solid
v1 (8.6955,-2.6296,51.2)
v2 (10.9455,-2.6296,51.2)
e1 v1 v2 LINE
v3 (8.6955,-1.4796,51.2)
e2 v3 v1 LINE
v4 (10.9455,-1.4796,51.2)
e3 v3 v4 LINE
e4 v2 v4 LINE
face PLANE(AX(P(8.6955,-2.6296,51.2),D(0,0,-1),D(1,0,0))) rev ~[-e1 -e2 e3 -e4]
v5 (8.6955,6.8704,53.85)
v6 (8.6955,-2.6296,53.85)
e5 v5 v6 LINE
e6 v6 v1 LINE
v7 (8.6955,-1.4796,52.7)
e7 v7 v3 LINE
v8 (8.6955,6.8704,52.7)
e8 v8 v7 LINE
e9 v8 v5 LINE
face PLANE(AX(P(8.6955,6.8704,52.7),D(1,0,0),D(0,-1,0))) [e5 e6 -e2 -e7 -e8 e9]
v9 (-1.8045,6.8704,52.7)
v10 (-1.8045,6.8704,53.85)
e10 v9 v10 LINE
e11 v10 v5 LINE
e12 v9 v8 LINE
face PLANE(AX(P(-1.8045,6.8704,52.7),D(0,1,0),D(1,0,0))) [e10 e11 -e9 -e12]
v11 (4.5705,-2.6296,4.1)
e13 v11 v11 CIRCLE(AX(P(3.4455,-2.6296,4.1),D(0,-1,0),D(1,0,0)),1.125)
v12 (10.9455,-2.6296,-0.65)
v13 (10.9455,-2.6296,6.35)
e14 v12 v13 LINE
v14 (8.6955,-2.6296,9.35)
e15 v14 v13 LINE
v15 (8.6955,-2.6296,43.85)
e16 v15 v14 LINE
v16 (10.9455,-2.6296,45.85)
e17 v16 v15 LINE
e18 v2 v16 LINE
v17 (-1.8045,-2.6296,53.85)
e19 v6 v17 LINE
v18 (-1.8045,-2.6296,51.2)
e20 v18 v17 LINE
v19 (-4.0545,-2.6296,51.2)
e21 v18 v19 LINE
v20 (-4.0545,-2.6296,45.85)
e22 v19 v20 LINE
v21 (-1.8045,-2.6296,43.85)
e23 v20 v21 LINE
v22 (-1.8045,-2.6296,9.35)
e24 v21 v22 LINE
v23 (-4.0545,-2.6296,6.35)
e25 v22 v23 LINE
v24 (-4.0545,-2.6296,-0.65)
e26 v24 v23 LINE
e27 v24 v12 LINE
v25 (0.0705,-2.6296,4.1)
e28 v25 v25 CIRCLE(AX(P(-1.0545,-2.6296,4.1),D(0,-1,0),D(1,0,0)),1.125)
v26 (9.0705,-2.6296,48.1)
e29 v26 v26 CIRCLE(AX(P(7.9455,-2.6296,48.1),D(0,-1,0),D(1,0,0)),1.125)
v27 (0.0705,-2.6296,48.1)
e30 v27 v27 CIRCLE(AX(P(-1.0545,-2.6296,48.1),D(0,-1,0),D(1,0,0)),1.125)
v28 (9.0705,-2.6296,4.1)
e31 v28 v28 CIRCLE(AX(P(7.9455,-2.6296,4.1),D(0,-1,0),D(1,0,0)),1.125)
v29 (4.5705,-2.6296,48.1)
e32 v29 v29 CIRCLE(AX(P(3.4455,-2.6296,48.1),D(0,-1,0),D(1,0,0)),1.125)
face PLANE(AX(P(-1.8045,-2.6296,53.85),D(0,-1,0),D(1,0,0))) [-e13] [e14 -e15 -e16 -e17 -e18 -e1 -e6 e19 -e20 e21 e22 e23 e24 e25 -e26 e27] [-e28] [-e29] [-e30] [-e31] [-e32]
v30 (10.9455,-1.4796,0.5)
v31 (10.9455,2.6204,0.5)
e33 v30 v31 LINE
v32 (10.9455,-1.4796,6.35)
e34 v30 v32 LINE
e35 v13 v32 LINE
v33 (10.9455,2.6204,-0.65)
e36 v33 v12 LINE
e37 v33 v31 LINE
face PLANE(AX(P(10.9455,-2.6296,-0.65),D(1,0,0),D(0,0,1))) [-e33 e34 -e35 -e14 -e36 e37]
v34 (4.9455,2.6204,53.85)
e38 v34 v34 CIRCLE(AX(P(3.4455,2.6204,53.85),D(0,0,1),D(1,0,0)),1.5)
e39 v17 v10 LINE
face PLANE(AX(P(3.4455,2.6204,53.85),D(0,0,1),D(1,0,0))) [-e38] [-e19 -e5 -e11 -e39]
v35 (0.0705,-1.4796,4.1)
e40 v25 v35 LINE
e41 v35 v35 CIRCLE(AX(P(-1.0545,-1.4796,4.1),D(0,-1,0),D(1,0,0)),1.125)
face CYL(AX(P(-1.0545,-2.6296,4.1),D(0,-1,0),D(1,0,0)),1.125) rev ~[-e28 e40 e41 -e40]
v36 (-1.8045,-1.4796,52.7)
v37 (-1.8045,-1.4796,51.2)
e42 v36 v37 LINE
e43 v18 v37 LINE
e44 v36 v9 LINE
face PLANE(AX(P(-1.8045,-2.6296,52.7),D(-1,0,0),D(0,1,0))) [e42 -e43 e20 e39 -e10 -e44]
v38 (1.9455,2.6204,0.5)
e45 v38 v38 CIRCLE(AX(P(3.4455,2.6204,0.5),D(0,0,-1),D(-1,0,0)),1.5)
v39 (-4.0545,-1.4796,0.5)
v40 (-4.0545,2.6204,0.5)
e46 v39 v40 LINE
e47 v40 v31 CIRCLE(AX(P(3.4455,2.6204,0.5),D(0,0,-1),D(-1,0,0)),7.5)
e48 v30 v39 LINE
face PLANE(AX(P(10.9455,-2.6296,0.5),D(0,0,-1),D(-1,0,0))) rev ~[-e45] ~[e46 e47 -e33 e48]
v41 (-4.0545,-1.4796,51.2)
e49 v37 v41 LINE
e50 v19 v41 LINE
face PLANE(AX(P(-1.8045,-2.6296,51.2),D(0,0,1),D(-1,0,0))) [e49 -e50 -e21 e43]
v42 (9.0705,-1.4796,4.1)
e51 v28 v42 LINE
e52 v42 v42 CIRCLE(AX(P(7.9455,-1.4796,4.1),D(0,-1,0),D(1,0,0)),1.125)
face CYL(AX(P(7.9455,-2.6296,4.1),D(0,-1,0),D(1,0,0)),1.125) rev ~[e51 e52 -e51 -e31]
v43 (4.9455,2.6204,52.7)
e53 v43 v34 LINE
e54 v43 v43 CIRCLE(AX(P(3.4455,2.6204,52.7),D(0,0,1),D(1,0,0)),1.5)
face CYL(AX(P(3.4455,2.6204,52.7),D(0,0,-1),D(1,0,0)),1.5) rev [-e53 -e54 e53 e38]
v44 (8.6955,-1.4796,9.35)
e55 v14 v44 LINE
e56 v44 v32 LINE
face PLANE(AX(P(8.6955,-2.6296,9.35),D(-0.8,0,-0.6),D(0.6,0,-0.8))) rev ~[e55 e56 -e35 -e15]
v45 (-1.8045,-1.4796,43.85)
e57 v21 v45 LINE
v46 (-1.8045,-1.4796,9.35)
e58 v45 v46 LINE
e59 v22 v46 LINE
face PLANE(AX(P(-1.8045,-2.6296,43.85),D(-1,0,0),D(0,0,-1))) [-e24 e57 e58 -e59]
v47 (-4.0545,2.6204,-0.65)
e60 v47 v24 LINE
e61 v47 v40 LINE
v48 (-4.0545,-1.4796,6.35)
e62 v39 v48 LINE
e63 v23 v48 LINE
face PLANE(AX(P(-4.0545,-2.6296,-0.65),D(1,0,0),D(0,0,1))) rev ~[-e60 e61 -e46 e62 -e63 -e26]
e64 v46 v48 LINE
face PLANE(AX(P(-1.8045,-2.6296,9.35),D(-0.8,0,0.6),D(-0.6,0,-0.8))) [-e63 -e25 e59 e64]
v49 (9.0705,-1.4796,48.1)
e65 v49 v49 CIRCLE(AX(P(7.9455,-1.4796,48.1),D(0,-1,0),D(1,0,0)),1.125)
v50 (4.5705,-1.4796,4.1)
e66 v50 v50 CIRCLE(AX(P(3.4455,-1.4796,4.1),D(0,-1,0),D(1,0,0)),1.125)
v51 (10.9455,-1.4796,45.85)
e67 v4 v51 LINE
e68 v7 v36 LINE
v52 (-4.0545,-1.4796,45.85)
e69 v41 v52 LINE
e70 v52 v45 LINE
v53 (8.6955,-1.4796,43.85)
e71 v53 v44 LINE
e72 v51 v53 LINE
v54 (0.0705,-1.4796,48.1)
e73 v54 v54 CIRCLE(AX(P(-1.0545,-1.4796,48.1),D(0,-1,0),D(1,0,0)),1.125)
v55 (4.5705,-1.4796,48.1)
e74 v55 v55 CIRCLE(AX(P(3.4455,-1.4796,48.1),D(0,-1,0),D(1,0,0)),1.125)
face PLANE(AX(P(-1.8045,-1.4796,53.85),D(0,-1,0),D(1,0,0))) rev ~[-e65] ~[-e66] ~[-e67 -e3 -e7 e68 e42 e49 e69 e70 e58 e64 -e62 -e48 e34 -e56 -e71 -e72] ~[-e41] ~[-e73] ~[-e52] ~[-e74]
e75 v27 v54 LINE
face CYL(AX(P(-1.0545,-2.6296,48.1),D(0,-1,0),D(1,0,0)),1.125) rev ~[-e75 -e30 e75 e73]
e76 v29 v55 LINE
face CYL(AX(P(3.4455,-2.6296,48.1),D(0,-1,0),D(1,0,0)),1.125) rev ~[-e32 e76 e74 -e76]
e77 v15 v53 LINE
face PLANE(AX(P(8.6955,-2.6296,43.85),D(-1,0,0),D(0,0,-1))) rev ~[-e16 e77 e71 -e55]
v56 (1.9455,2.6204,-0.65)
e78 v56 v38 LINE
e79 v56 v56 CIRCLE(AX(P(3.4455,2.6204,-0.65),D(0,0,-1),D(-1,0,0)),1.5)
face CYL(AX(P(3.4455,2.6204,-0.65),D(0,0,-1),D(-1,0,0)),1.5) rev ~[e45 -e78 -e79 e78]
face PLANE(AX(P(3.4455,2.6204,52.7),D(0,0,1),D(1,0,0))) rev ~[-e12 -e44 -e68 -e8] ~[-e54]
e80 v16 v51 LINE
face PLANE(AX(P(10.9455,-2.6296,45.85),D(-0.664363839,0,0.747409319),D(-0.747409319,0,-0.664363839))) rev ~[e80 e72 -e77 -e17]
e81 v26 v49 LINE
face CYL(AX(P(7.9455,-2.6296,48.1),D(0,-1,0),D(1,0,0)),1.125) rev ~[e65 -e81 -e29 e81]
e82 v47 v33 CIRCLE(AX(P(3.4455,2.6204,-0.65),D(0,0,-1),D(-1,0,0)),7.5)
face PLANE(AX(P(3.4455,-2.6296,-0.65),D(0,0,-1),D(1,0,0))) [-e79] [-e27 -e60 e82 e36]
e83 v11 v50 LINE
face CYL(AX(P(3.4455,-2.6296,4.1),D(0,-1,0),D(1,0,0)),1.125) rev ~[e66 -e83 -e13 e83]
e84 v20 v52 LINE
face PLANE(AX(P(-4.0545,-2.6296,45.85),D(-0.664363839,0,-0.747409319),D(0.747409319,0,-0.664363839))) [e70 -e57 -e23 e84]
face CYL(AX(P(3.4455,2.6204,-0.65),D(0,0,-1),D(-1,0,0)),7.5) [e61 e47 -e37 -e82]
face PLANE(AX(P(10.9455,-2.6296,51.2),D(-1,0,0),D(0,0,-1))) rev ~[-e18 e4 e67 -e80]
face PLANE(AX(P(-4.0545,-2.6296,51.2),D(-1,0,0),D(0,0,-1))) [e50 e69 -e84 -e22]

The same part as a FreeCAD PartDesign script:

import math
import FreeCAD as App
import Part
import Sketcher

V = App.Vector
Q = App.Units.Quantity

doc = App.newDocument("Part")
params = doc.addObject("Spreadsheet::Sheet", "Params")
for row, (alias, value) in enumerate([
    ("sketch1_diameter", "3 mm"),
    ("sketch1_width", "10.5 mm"),
    ("sketch1_height", "9.5 mm"),
    ("pad1_length", "1.15 mm"),
    ("sketch2_height", "1.15 mm"),
    ("sketch2_width", "10.5 mm"),
    ("pad2_length", "1.5 mm"),
    ("sketch3_diameter", "2.25 mm"),
    ("sketch3_height", "7 mm"),
    ("sketch3_height2", "34.5 mm"),
    ("sketch3_height3", "5.35 mm"),
    ("pad3_length", "1.15 mm"),
    ("sketch4_diameter", "3 mm"),
    ("sketch4_radius", "7.5 mm"),
    ("sketch4_height", "4.1 mm"),
    ("pad4_length", "1.15 mm"),
], start=1):
    params.set(f"A{row}", alias)
    params.set(f"B{row}", "=" + value)
    params.setAlias(f"B{row}", alias)

body = doc.addObject("PartDesign::Body", "Body")

# Sketch on XY plane
sketch1 = body.newObject("Sketcher::SketchObject", "Sketch")
sketch1.AttachmentSupport = (doc.getObject("XY_Plane"), [""])
sketch1.MapMode = "FlatFace"
sketch1.AttachmentOffset = App.Placement(V(0, 0, 52.7), App.Rotation())
sketch1.addGeometry([
    Part.LineSegment(V(8.6955, 6.8704, 0), V(-1.8045, 6.8704, 0)),  # 0
    Part.LineSegment(V(-1.8045, 6.8704, 0), V(-1.8045, -2.6296, 0)),  # 1
    Part.LineSegment(V(-1.8045, -2.6296, 0), V(8.6955, -2.6296, 0)),  # 2
    Part.LineSegment(V(8.6955, -2.6296, 0), V(8.6955, 6.8704, 0)),  # 3
    Part.Circle(V(3.4455, 2.6204, 0), V(0, 0, 1), 1.5),  # 4
], False)
sketch1.addConstraint([
    Sketcher.Constraint("Coincident", 0, 2, 1, 1),
    Sketcher.Constraint("Coincident", 1, 2, 2, 1),
    Sketcher.Constraint("Coincident", 2, 2, 3, 1),
    Sketcher.Constraint("Coincident", 3, 2, 0, 1),
    Sketcher.Constraint("Horizontal", 0),
    Sketcher.Constraint("Vertical", 1),
    Sketcher.Constraint("Horizontal", 2),
    Sketcher.Constraint("Vertical", 3),
    Sketcher.Constraint("Diameter", 4, Q("3 mm")),
    Sketcher.Constraint("DistanceX", 0, 2, 0, 1, Q("10.5 mm")),
    Sketcher.Constraint("DistanceY", 1, 2, 1, 1, Q("9.5 mm")),
    Sketcher.Constraint("DistanceX", 0, 2, 4, 3, Q("5.25 mm")),
    Sketcher.Constraint("DistanceY", 4, 3, 0, 2, Q("4.25 mm")),
    Sketcher.Constraint("DistanceX", -1, 1, 4, 3, Q("3.4455 mm")),
    Sketcher.Constraint("DistanceY", -1, 1, 4, 3, Q("2.6204 mm")),
])
sketch1.setExpression("Constraints[8]", "Params.sketch1_diameter")
sketch1.setExpression("Constraints[9]", "Params.sketch1_width")
sketch1.setExpression("Constraints[10]", "Params.sketch1_height")
pad1 = body.newObject("PartDesign::Pad", "Pad")
pad1.Profile = sketch1
pad1.setExpression("Length", "Params.pad1_length")

# Sketch on XY plane
sketch2 = body.newObject("Sketcher::SketchObject", "Sketch001")
sketch2.AttachmentSupport = (doc.getObject("XY_Plane"), [""])
sketch2.MapMode = "FlatFace"
sketch2.AttachmentOffset = App.Placement(V(0, 0, 52.7), App.Rotation())
sketch2.addGeometry([
    Part.LineSegment(V(-1.8045, -1.4796, 0), V(8.6955, -1.4796, 0)),
    Part.LineSegment(V(8.6955, -1.4796, 0), V(8.6955, -2.6296, 0)),
    Part.LineSegment(V(8.6955, -2.6296, 0), V(-1.8045, -2.6296, 0)),
    Part.LineSegment(V(-1.8045, -2.6296, 0), V(-1.8045, -1.4796, 0)),
], False)
sketch2.addConstraint([
    Sketcher.Constraint("Coincident", 0, 2, 1, 1),
    Sketcher.Constraint("Coincident", 1, 2, 2, 1),
    Sketcher.Constraint("Coincident", 2, 2, 3, 1),
    Sketcher.Constraint("Coincident", 3, 2, 0, 1),
    Sketcher.Constraint("Horizontal", 0),
    Sketcher.Constraint("Vertical", 1),
    Sketcher.Constraint("Horizontal", 2),
    Sketcher.Constraint("Vertical", 3),
    Sketcher.Constraint("DistanceY", 1, 2, 1, 1, Q("1.15 mm")),
    Sketcher.Constraint("DistanceX", 0, 1, 0, 2, Q("10.5 mm")),
    Sketcher.Constraint("DistanceX", -1, 1, 0, 2, Q("8.6955 mm")),
    Sketcher.Constraint("DistanceY", 0, 2, -1, 1, Q("1.4796 mm")),
])
sketch2.setExpression("Constraints[8]", "Params.sketch2_height")
sketch2.setExpression("Constraints[9]", "Params.sketch2_width")
pad2 = body.newObject("PartDesign::Pad", "Pad001")
pad2.Profile = sketch2
pad2.setExpression("Length", "Params.pad2_length")
pad2.Reversed = True

# Sketch on XZ plane
sketch3 = body.newObject("Sketcher::SketchObject", "Sketch002")
sketch3.AttachmentSupport = (doc.getObject("XZ_Plane"), [""])
sketch3.MapMode = "FlatFace"
sketch3.AttachmentOffset = App.Placement(V(0, 0, 2.6296), App.Rotation())
sketch3.addGeometry([
    Part.LineSegment(V(10.9455, 51.2, 0), V(-4.0545, 51.2, 0)),  # 0
    Part.LineSegment(V(-4.0545, 51.2, 0), V(-4.0545, 45.85, 0)),  # 1
    Part.LineSegment(V(-4.0545, 45.85, 0), V(-1.8045, 43.85, 0)),  # 2
    Part.LineSegment(V(-1.8045, 43.85, 0), V(-1.8045, 9.35, 0)),  # 3
    Part.LineSegment(V(-1.8045, 9.35, 0), V(-4.0545, 6.35, 0)),  # 4
    Part.LineSegment(V(-4.0545, 6.35, 0), V(-4.0545, -0.65, 0)),  # 5
    Part.LineSegment(V(-4.0545, -0.65, 0), V(10.9455, -0.65, 0)),  # 6
    Part.LineSegment(V(10.9455, -0.65, 0), V(10.9455, 6.35, 0)),  # 7
    Part.LineSegment(V(10.9455, 6.35, 0), V(8.6955, 9.35, 0)),  # 8
    Part.LineSegment(V(8.6955, 9.35, 0), V(8.6955, 43.85, 0)),  # 9
    Part.LineSegment(V(8.6955, 43.85, 0), V(10.9455, 45.85, 0)),  # 10
    Part.LineSegment(V(10.9455, 45.85, 0), V(10.9455, 51.2, 0)),  # 11
    Part.Circle(V(-1.0545, 4.1, 0), V(0, 0, 1), 1.125),  # 12
    Part.Circle(V(3.4455, 4.1, 0), V(0, 0, 1), 1.125),  # 13
    Part.Circle(V(7.9455, 4.1, 0), V(0, 0, 1), 1.125),  # 14
    Part.Circle(V(-1.0545, 48.1, 0), V(0, 0, 1), 1.125),  # 15
    Part.Circle(V(3.4455, 48.1, 0), V(0, 0, 1), 1.125),  # 16
    Part.Circle(V(7.9455, 48.1, 0), V(0, 0, 1), 1.125),  # 17
], False)
sketch3.addConstraint([
    Sketcher.Constraint("Coincident", 0, 2, 1, 1),
    Sketcher.Constraint("Coincident", 1, 2, 2, 1),
    Sketcher.Constraint("Coincident", 2, 2, 3, 1),
    Sketcher.Constraint("Coincident", 3, 2, 4, 1),
    Sketcher.Constraint("Coincident", 4, 2, 5, 1),
    Sketcher.Constraint("Coincident", 5, 2, 6, 1),
    Sketcher.Constraint("Coincident", 6, 2, 7, 1),
    Sketcher.Constraint("Coincident", 7, 2, 8, 1),
    Sketcher.Constraint("Coincident", 8, 2, 9, 1),
    Sketcher.Constraint("Coincident", 9, 2, 10, 1),
    Sketcher.Constraint("Coincident", 10, 2, 11, 1),
    Sketcher.Constraint("Coincident", 11, 2, 0, 1),
    Sketcher.Constraint("Horizontal", 0),
    Sketcher.Constraint("Vertical", 1),
    Sketcher.Constraint("Vertical", 3),
    Sketcher.Constraint("Vertical", 5),
    Sketcher.Constraint("Horizontal", 6),
    Sketcher.Constraint("Vertical", 7),
    Sketcher.Constraint("Vertical", 9),
    Sketcher.Constraint("Vertical", 11),
    Sketcher.Constraint("Equal", 12, 13),
    Sketcher.Constraint("Equal", 13, 14),
    Sketcher.Constraint("Equal", 14, 15),
    Sketcher.Constraint("Equal", 15, 16),
    Sketcher.Constraint("Equal", 16, 17),
    Sketcher.Constraint("Horizontal", 12, 3, 13, 3),
    Sketcher.Constraint("Horizontal", 13, 3, 14, 3),
    Sketcher.Constraint("Horizontal", 15, 3, 16, 3),
    Sketcher.Constraint("Horizontal", 16, 3, 17, 3),
    Sketcher.Constraint("Horizontal", 4, 2, 7, 2),
    Sketcher.Constraint("Horizontal", 3, 2, 8, 2),
    Sketcher.Constraint("Horizontal", 2, 2, 9, 2),
    Sketcher.Constraint("Horizontal", 1, 2, 10, 2),
    Sketcher.Constraint("Vertical", 12, 3, 15, 3),
    Sketcher.Constraint("Vertical", 13, 3, 16, 3),
    Sketcher.Constraint("Vertical", 14, 3, 17, 3),
    Sketcher.Constraint("Vertical", 1, 2, 4, 2),
    Sketcher.Constraint("Vertical", 7, 2, 10, 2),
    Sketcher.Constraint("Equal", 4, 8),
    Sketcher.Constraint("Diameter", 12, Q("2.25 mm")),
    Sketcher.Constraint("DistanceY", 5, 2, 5, 1, Q("7 mm")),
    Sketcher.Constraint("DistanceY", 3, 2, 3, 1, Q("34.5 mm")),
    Sketcher.Constraint("DistanceY", 5, 2, 3, 2, Q("10 mm")),
    Sketcher.Constraint("DistanceX", 12, 3, 13, 3, Q("4.5 mm")),
    Sketcher.Constraint("DistanceX", 13, 3, 14, 3, Q("4.5 mm")),
    Sketcher.Constraint("DistanceX", 0, 2, 16, 3, Q("7.5 mm")),
    Sketcher.Constraint("DistanceX", 13, 3, 6, 2, Q("7.5 mm")),
    Sketcher.Constraint("DistanceY", 1, 2, 15, 3, Q("2.25 mm")),
    Sketcher.Constraint("DistanceX", 1, 2, 2, 2, Q("2.25 mm")),
    Sketcher.Constraint("DistanceY", 12, 3, 3, 2, Q("5.25 mm")),
    Sketcher.Constraint("DistanceY", 12, 3, 15, 3, Q("44 mm")),
    Sketcher.Constraint("DistanceY", 1, 2, 1, 1, Q("5.35 mm")),
    Sketcher.Constraint("DistanceY", -1, 1, 12, 3, Q("4.1 mm")),
    Sketcher.Constraint("DistanceX", 12, 3, -1, 1, Q("1.0545 mm")),
])
sketch3.setExpression("Constraints[39]", "Params.sketch3_diameter")
sketch3.setExpression("Constraints[40]", "Params.sketch3_height")
sketch3.setExpression("Constraints[41]", "Params.sketch3_height2")
sketch3.setExpression("Constraints[51]", "Params.sketch3_height3")
pad3 = body.newObject("PartDesign::Pad", "Pad002")
pad3.Profile = sketch3
pad3.setExpression("Length", "Params.pad3_length")
pad3.Reversed = True

# Sketch on XY plane
sketch4 = body.newObject("Sketcher::SketchObject", "Sketch003")
sketch4.AttachmentSupport = (doc.getObject("XY_Plane"), [""])
sketch4.MapMode = "FlatFace"
sketch4.AttachmentOffset = App.Placement(V(0, 0, -0.65), App.Rotation())
sketch4.addGeometry([
    Part.LineSegment(V(-4.0545, -1.4796, 0), V(-4.0545, 2.6204, 0)),  # 0
    Part.ArcOfCircle(Part.Circle(V(3.4455, 2.6204, 0), V(0, 0, 1), 7.5), math.radians(0), math.radians(180)),  # 1
    Part.LineSegment(V(10.9455, 2.6204, 0), V(10.9455, -1.4796, 0)),  # 2
    Part.LineSegment(V(10.9455, -1.4796, 0), V(-4.0545, -1.4796, 0)),  # 3
    Part.Circle(V(3.4455, 2.6204, 0), V(0, 0, 1), 1.5),  # 4
], False)
sketch4.addConstraint([
    Sketcher.Constraint("Tangent", 0, 2, 1, 2),
    Sketcher.Constraint("Tangent", 1, 1, 2, 1),
    Sketcher.Constraint("Coincident", 2, 2, 3, 1),
    Sketcher.Constraint("Coincident", 3, 2, 0, 1),
    Sketcher.Constraint("Vertical", 0),
    Sketcher.Constraint("Vertical", 2),
    Sketcher.Constraint("Horizontal", 3),
    Sketcher.Constraint("Coincident", 4, 3, 1, 3),
    Sketcher.Constraint("Diameter", 4, Q("3 mm")),
    Sketcher.Constraint("Radius", 1, Q("7.5 mm")),
    Sketcher.Constraint("DistanceY", 0, 1, 0, 2, Q("4.1 mm")),
    Sketcher.Constraint("DistanceX", -1, 1, 1, 3, Q("3.4455 mm")),
    Sketcher.Constraint("DistanceY", -1, 1, 1, 3, Q("2.6204 mm")),
])
sketch4.setExpression("Constraints[8]", "Params.sketch4_diameter")
sketch4.setExpression("Constraints[9]", "Params.sketch4_radius")
sketch4.setExpression("Constraints[10]", "Params.sketch4_height")
pad4 = body.newObject("PartDesign::Pad", "Pad003")
pad4.Profile = sketch4
pad4.setExpression("Length", "Params.pad4_length")

doc.recompute()
